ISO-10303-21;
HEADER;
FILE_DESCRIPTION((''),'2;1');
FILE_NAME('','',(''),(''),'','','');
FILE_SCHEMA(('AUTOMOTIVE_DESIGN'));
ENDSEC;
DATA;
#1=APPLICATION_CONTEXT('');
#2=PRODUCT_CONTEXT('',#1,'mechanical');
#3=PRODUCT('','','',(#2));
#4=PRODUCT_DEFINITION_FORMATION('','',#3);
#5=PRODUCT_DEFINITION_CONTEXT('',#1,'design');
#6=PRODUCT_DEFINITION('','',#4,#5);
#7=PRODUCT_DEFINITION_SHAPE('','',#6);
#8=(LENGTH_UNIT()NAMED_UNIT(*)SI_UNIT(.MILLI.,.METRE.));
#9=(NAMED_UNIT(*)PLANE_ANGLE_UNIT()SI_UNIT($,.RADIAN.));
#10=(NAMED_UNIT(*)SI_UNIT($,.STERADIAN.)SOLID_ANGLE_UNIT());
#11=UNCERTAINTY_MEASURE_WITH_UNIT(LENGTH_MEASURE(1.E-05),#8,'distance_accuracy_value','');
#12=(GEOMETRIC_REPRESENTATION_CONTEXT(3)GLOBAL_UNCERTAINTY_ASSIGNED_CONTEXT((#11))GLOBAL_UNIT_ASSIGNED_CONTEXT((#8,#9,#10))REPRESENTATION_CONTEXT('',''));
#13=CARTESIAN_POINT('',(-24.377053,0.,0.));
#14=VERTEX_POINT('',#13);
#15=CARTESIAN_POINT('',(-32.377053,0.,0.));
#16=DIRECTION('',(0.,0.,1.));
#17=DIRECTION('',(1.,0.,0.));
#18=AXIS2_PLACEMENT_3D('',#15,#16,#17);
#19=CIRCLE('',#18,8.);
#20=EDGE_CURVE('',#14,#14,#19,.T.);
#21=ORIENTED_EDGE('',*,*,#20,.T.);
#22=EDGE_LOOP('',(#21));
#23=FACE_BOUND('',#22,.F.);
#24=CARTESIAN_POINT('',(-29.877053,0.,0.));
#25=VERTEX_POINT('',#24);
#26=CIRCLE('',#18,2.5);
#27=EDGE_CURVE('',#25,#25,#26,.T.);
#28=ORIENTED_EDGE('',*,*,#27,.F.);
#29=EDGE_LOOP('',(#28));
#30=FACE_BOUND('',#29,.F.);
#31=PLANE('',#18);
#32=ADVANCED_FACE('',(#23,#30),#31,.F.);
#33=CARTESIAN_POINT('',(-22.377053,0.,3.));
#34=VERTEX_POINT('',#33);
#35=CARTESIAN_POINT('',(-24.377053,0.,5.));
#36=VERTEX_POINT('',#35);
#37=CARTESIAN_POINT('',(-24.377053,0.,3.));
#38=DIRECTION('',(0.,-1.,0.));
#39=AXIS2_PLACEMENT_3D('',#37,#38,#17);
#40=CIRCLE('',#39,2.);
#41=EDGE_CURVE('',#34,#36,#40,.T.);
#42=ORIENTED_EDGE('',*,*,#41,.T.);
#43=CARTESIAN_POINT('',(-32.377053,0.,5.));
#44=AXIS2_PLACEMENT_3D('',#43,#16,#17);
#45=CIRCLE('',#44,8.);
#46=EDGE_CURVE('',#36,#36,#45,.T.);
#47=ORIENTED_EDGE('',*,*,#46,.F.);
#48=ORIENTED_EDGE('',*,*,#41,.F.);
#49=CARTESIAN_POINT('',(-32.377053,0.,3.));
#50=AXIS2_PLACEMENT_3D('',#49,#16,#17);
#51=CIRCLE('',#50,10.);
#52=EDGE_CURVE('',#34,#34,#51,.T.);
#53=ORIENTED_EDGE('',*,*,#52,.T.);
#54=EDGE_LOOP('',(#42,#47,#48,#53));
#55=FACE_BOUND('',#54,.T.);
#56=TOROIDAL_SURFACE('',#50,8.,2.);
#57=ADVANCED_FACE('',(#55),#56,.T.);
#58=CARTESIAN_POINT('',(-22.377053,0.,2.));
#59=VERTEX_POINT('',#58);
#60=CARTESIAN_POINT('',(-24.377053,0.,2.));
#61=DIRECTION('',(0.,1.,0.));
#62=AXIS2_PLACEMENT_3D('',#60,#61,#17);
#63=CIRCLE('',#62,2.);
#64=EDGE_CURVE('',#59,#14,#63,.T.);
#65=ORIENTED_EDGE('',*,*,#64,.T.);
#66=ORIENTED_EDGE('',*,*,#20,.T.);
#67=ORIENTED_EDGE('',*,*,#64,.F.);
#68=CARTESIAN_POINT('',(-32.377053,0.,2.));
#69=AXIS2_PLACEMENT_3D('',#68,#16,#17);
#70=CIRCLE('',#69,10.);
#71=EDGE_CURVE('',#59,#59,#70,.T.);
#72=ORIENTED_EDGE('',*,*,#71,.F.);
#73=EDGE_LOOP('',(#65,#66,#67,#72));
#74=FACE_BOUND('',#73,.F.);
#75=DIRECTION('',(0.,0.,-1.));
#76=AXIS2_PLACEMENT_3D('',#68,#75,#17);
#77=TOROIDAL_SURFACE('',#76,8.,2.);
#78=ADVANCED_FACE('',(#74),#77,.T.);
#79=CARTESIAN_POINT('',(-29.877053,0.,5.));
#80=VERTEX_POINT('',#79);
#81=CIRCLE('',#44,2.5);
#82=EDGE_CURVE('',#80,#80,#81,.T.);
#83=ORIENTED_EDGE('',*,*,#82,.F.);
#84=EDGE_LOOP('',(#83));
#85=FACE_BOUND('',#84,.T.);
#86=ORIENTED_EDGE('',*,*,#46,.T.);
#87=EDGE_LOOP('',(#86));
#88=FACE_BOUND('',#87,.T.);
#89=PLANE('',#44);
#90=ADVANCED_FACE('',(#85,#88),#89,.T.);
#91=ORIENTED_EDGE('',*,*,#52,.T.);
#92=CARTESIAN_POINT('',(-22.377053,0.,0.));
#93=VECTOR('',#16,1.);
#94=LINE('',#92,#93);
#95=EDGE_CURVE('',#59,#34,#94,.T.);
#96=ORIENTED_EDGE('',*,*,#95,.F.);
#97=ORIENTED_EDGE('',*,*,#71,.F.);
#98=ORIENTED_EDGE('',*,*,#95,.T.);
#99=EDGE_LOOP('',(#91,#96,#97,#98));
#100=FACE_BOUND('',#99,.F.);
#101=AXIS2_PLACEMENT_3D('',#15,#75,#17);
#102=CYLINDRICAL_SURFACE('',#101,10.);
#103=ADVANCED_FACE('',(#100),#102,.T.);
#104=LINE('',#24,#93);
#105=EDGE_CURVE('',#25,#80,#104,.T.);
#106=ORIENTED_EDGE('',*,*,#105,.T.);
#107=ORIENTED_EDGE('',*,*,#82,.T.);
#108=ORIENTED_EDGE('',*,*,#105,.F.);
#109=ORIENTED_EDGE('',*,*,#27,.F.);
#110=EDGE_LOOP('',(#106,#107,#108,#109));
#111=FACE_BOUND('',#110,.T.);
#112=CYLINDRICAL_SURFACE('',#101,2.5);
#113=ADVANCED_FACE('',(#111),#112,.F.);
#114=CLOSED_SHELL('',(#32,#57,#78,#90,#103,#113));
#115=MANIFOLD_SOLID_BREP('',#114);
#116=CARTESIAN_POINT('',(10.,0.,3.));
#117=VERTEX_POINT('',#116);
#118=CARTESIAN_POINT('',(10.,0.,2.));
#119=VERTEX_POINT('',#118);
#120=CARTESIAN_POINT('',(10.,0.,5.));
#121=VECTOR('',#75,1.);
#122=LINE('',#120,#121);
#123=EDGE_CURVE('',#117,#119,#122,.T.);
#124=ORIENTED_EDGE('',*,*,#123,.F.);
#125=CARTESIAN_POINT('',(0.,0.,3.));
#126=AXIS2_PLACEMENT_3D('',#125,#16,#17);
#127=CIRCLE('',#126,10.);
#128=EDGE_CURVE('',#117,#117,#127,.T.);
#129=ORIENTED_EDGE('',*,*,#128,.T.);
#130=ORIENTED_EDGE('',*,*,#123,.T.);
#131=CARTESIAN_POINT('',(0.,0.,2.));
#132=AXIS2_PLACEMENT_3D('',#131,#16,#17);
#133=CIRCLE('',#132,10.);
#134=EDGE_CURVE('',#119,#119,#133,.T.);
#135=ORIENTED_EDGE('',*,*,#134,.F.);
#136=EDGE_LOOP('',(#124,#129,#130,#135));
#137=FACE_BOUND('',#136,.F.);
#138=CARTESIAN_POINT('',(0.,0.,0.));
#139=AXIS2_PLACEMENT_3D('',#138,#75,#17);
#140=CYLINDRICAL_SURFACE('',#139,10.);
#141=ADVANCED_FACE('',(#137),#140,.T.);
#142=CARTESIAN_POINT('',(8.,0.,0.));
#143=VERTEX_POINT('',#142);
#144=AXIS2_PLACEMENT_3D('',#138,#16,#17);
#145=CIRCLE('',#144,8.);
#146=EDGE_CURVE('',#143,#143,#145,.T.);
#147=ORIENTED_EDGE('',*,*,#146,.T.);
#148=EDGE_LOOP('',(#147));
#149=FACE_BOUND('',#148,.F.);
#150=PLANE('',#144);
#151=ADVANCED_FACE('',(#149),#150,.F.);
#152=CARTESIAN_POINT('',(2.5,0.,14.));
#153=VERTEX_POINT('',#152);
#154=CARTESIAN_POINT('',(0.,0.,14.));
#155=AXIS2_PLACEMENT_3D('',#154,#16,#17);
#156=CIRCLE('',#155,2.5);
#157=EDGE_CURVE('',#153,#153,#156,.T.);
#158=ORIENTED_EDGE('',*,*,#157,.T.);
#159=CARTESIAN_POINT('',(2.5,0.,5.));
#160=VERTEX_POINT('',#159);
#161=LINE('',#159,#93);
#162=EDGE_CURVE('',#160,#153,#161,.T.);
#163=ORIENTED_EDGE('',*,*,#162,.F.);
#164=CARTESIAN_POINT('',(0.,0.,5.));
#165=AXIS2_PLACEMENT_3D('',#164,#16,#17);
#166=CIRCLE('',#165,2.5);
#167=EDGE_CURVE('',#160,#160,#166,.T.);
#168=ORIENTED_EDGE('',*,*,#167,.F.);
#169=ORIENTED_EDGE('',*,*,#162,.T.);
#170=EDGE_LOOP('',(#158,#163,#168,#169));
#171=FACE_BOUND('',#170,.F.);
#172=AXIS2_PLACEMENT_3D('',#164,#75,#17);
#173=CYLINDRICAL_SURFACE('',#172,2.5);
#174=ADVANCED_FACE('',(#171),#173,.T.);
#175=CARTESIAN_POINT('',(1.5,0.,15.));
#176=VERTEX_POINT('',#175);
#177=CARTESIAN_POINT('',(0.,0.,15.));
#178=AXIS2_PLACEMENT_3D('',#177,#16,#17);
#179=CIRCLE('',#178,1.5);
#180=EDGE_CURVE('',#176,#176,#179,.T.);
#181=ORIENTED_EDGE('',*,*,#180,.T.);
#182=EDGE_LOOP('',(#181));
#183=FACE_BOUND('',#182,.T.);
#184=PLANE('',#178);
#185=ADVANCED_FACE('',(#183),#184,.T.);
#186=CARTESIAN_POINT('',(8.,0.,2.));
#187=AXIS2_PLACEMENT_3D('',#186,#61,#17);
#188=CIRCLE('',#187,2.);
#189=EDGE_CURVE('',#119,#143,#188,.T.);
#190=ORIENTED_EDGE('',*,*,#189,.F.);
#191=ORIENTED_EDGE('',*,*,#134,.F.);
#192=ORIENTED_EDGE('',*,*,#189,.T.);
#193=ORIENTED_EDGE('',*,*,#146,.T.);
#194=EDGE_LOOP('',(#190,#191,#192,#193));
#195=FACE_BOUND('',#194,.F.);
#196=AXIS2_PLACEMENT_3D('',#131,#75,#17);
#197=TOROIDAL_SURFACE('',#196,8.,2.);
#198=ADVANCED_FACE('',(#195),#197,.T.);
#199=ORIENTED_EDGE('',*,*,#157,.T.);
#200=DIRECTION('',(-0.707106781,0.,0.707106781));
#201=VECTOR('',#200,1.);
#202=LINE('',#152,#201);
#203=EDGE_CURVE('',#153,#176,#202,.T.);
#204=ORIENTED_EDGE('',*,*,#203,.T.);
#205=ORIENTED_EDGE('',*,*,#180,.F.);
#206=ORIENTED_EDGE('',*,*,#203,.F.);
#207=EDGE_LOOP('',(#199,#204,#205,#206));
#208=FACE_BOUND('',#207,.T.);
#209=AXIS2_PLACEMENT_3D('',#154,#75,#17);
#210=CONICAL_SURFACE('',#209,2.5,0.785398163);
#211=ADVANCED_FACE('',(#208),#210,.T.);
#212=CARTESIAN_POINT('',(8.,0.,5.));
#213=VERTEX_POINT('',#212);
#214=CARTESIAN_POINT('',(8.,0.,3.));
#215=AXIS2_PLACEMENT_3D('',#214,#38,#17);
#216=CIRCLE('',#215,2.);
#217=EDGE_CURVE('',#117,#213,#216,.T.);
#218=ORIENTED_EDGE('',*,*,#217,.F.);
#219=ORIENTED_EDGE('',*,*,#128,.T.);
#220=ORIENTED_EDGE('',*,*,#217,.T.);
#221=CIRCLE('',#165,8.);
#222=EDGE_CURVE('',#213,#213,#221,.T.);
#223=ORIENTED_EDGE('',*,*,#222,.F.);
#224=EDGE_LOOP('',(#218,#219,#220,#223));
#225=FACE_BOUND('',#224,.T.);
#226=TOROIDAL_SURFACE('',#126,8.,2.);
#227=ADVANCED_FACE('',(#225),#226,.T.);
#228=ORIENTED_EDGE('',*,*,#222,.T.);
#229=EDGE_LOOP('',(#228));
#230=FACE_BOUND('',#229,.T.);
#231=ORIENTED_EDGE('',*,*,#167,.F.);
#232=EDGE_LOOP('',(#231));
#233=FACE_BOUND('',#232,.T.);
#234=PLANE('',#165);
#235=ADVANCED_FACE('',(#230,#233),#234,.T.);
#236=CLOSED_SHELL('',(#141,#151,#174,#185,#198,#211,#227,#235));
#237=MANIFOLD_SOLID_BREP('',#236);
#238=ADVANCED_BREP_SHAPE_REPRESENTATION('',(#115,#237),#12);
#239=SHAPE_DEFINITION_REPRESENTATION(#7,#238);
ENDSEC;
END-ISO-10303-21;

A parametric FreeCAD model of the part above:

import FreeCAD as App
import Part
import Sketcher

V = App.Vector


def edges_at(feature, points):
    """Names of the edges that pass closest to the given points."""
    edges = feature.Shape.Edges
    near = lambda p: min(range(len(edges)), key=lambda i: edges[i].distToShape(Part.Vertex(*p))[0])
    return sorted({f"Edge{near(p) + 1}" for p in points})

doc = App.newDocument("Part")
body = doc.addObject("PartDesign::Body", "Body")
body.AllowCompound = True

# Sketch on XY plane
sketch1 = body.newObject("Sketcher::SketchObject", "Sketch")
sketch1.AttachmentSupport = (doc.getObject("XY_Plane"), [""])
sketch1.MapMode = "FlatFace"
sketch1.addGeometry(Part.Circle(V(0, 0, 0), V(0, 0, 1), 10), False)
sketch1.addConstraint([
    Sketcher.Constraint("Coincident", 0, 3, -1, 1),
    Sketcher.Constraint("Diameter", 0, 20.0),
])
pad1 = body.newObject("PartDesign::Pad", "Pad")
pad1.Profile = sketch1
pad1.Length = 5

# Sketch on XY plane
sketch2 = body.newObject("Sketcher::SketchObject", "Sketch001")
sketch2.AttachmentSupport = (doc.getObject("XY_Plane"), [""])
sketch2.MapMode = "FlatFace"
sketch2.AttachmentOffset = App.Placement(V(0, 0, 5), App.Rotation())
sketch2.addGeometry(Part.Circle(V(0, 0, 0), V(0, 0, 1), 2.5), False)
sketch2.addConstraint([
    Sketcher.Constraint("Coincident", 0, 3, -1, 1),
    Sketcher.Constraint("Diameter", 0, 5.0),
])
pad2 = body.newObject("PartDesign::Pad", "Pad001")
pad2.Profile = sketch2
pad2.Length = 10
doc.recompute()

chamfer = body.newObject("PartDesign::Chamfer", "Chamfer")
chamfer.Base = (pad2, edges_at(pad2, [(-2.5, 0, 15)]))
chamfer.Size = 1
doc.recompute()

fillet = body.newObject("PartDesign::Fillet", "Fillet")
fillet.Base = (chamfer, edges_at(chamfer, [(-10, 0, 5), (-10, 0, 0)]))
fillet.Radius = 2

# Sketch on XY plane
sketch3 = body.newObject("Sketcher::SketchObject", "Sketch002")
sketch3.AttachmentSupport = (doc.getObject("XY_Plane"), [""])
sketch3.MapMode = "FlatFace"
sketch3.addGeometry([
    Part.Circle(V(0, 0, 0), V(0, 0, 1), 10),
    Part.Circle(V(-32.4, 0, 0), V(0, 0, 1), 10),
    Part.Circle(V(-32.4, 0, 0), V(0, 0, 1), 2.5),
], False)
sketch3.addConstraint([
    Sketcher.Constraint("Coincident", 0, 3, -1, 1),
    Sketcher.Constraint("Coincident", 2, 3, 1, 3),
    Sketcher.Constraint("Equal", 0, 1),
    Sketcher.Constraint("PointOnObject", 1, 3, -1),
    Sketcher.Constraint("Diameter", 0, 20.0),
    Sketcher.Constraint("Diameter", 2, 5.0),
    Sketcher.Constraint("DistanceX", 1, 3, -1, 1, 32.377053),
])
pad3 = body.newObject("PartDesign::Pad", "Pad002")
pad3.Profile = sketch3
pad3.Length = 5
doc.recompute()

fillet2 = body.newObject("PartDesign::Fillet", "Fillet001")
fillet2.Base = (pad3, edges_at(pad3, [
    (-42.377, 0, 5),
    (-42.377, 0, 0),
    (-10, 0, 5),
    (-10, 0, 0),
]))
fillet2.Radius = 2

doc.recompute()
